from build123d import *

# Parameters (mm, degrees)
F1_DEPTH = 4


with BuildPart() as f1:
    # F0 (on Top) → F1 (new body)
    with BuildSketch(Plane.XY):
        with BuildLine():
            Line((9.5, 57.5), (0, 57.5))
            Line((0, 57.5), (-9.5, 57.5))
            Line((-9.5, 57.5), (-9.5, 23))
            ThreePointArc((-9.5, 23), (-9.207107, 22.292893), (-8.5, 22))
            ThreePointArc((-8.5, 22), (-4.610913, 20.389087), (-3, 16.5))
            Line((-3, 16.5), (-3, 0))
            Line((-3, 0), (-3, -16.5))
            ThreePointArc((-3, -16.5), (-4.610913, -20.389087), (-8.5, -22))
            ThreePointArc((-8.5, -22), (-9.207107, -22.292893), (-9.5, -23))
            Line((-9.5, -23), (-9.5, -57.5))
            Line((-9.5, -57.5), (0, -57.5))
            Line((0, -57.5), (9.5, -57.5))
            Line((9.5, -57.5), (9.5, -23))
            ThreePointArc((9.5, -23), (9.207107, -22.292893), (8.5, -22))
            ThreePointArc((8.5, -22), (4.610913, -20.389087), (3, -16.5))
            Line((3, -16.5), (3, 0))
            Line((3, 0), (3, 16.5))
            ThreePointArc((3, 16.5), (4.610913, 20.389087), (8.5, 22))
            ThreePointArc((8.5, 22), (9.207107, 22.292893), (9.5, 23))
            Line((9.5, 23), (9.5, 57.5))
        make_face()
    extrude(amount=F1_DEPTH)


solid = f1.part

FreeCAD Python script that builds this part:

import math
import FreeCAD as App
import Part
import Sketcher

doc = App.newDocument("Part")
params = doc.addObject("Spreadsheet::Sheet", "Params")
for row, (alias, value) in enumerate([
    ("sketch1_radius", "0.999999 mm"),
    ("sketch1_radius2", "5.500001 mm"),
    ("sketch1_width", "19 mm"),
    ("sketch1_height", "33 mm"),
    ("sketch1_height2", "34.5 mm"),
    ("pad1_length", "4 mm"),
], start=1):
    params.set(f"A{row}", alias)
    params.set(f"B{row}", "=" + value)
    params.setAlias(f"B{row}", alias)

body = doc.addObject("PartDesign::Body", "Body")

# Sketch on XY plane
sketch1 = body.newObject("Sketcher::SketchObject", "Sketch")
sketch1.AttachmentSupport = (doc.getObject("XY_Plane"), [""])
sketch1.MapMode = "FlatFace"
sketch1.addGeometry(Part.LineSegment(App.Vector(9.5, 57.5, 0), App.Vector(-9.5, 57.5, 0)), False)
sketch1.addGeometry(Part.LineSegment(App.Vector(-9.5, 57.5, 0), App.Vector(-9.5, 23, 0)), False)
sketch1.addGeometry(Part.ArcOfCircle(Part.Circle(App.Vector(-8.5, 23, 0), App.Vector(0, 0, 1), 1), math.radians(180), math.radians(270)), False)
sketch1.addGeometry(Part.ArcOfCircle(Part.Circle(App.Vector(-8.5, 16.5, 0), App.Vector(0, 0, 1), 5.5), math.radians(0), math.radians(90)), False)
sketch1.addGeometry(Part.LineSegment(App.Vector(-3, 16.5, 0), App.Vector(-3, -16.5, 0)), False)
sketch1.addGeometry(Part.ArcOfCircle(Part.Circle(App.Vector(-8.5, -16.5, 0), App.Vector(0, 0, 1), 5.5), math.radians(-90), math.radians(0)), False)
sketch1.addGeometry(Part.ArcOfCircle(Part.Circle(App.Vector(-8.5, -23, 0), App.Vector(0, 0, 1), 1), math.radians(90), math.radians(180)), False)
sketch1.addGeometry(Part.LineSegment(App.Vector(-9.5, -23, 0), App.Vector(-9.5, -57.5, 0)), False)
sketch1.addGeometry(Part.LineSegment(App.Vector(-9.5, -57.5, 0), App.Vector(9.5, -57.5, 0)), False)
sketch1.addGeometry(Part.LineSegment(App.Vector(9.5, -57.5, 0), App.Vector(9.5, -23, 0)), False)
sketch1.addGeometry(Part.ArcOfCircle(Part.Circle(App.Vector(8.5, -23, 0), App.Vector(0, 0, 1), 1), math.radians(0), math.radians(90)), False)
sketch1.addGeometry(Part.ArcOfCircle(Part.Circle(App.Vector(8.5, -16.5, 0), App.Vector(0, 0, 1), 5.5), math.radians(-180), math.radians(-90)), False)
sketch1.addGeometry(Part.LineSegment(App.Vector(3, -16.5, 0), App.Vector(3, 16.5, 0)), False)
sketch1.addGeometry(Part.ArcOfCircle(Part.Circle(App.Vector(8.5, 16.5, 0), App.Vector(0, 0, 1), 5.5), math.radians(90), math.radians(180)), False)
sketch1.addGeometry(Part.ArcOfCircle(Part.Circle(App.Vector(8.5, 23, 0), App.Vector(0, 0, 1), 1), math.radians(-90), math.radians(0)), False)
sketch1.addGeometry(Part.LineSegment(App.Vector(9.5, 23, 0), App.Vector(9.5, 57.5, 0)), False)
sketch1.addConstraint(Sketcher.Constraint("Coincident", 0, 2, 1, 1))
sketch1.addConstraint(Sketcher.Constraint("Tangent", 1, 2, 2, 1))
sketch1.addConstraint(Sketcher.Constraint("Tangent", 2, 2, 3, 2))
sketch1.addConstraint(Sketcher.Constraint("Tangent", 3, 1, 4, 1))
sketch1.addConstraint(Sketcher.Constraint("Tangent", 4, 2, 5, 2))
sketch1.addConstraint(Sketcher.Constraint("Tangent", 5, 1, 6, 1))
sketch1.addConstraint(Sketcher.Constraint("Tangent", 6, 2, 7, 1))
sketch1.addConstraint(Sketcher.Constraint("Coincident", 7, 2, 8, 1))
sketch1.addConstraint(Sketcher.Constraint("Coincident", 8, 2, 9, 1))
sketch1.addConstraint(Sketcher.Constraint("Tangent", 9, 2, 10, 1))
sketch1.addConstraint(Sketcher.Constraint("Tangent", 10, 2, 11, 2))
sketch1.addConstraint(Sketcher.Constraint("Tangent", 11, 1, 12, 1))
sketch1.addConstraint(Sketcher.Constraint("Tangent", 12, 2, 13, 2))
sketch1.addConstraint(Sketcher.Constraint("Tangent", 13, 1, 14, 1))
sketch1.addConstraint(Sketcher.Constraint("Tangent", 14, 2, 15, 1))
sketch1.addConstraint(Sketcher.Constraint("Coincident", 15, 2, 0, 1))
sketch1.addConstraint(Sketcher.Constraint("Horizontal", 0))
sketch1.addConstraint(Sketcher.Constraint("Vertical", 1))
sketch1.addConstraint(Sketcher.Constraint("Vertical", 4))
sketch1.addConstraint(Sketcher.Constraint("Vertical", 7))
sketch1.addConstraint(Sketcher.Constraint("Horizontal", 8))
sketch1.addConstraint(Sketcher.Constraint("Vertical", 9))
sketch1.addConstraint(Sketcher.Constraint("Vertical", 12))
sketch1.addConstraint(Sketcher.Constraint("Vertical", 15))
sketch1.addConstraint(Sketcher.Constraint("Equal", 3, 5))
sketch1.addConstraint(Sketcher.Constraint("Equal", 2, 6))
sketch1.addConstraint(Sketcher.Constraint("Equal", 6, 10))
sketch1.addConstraint(Sketcher.Constraint("Equal", 5, 11))
sketch1.addConstraint(Sketcher.Constraint("Equal", 11, 13))
sketch1.addConstraint(Sketcher.Constraint("Equal", 10, 14))
sketch1.addConstraint(Sketcher.Constraint("Symmetric", 2, 3, 10, 3, -1, 1))
sketch1.addConstraint(Sketcher.Constraint("Symmetric", 5, 3, 13, 3, -1, 1))
sketch1.addConstraint(Sketcher.Constraint("Symmetric", 7, 2, 15, 2, -1, 1))
sketch1.addConstraint(Sketcher.Constraint("Symmetric", 6, 3, 10, 3, -2))
sketch1.addConstraint(Sketcher.Constraint("Vertical", 2, 3, 3, 3))
sketch1.addConstraint(Sketcher.Constraint("Radius", 2, 0.999999))
sketch1.addConstraint(Sketcher.Constraint("Radius", 3, 5.500001))
sketch1.addConstraint(Sketcher.Constraint("DistanceX", 0, 2, 0, 1, 19.0))
sketch1.addConstraint(Sketcher.Constraint("DistanceY", 4, 2, 4, 1, 33.0))
sketch1.addConstraint(Sketcher.Constraint("DistanceY", 1, 2, 1, 1, 34.5))
sketch1.setExpression("Constraints[35]", "Params.sketch1_radius")
sketch1.setExpression("Constraints[36]", "Params.sketch1_radius2")
sketch1.setExpression("Constraints[37]", "Params.sketch1_width")
sketch1.setExpression("Constraints[38]", "Params.sketch1_height")
sketch1.setExpression("Constraints[39]", "Params.sketch1_height2")
pad1 = body.newObject("PartDesign::Pad", "Pad")
pad1.Profile = sketch1
pad1.setExpression("Length", "Params.pad1_length")

doc.recompute()
